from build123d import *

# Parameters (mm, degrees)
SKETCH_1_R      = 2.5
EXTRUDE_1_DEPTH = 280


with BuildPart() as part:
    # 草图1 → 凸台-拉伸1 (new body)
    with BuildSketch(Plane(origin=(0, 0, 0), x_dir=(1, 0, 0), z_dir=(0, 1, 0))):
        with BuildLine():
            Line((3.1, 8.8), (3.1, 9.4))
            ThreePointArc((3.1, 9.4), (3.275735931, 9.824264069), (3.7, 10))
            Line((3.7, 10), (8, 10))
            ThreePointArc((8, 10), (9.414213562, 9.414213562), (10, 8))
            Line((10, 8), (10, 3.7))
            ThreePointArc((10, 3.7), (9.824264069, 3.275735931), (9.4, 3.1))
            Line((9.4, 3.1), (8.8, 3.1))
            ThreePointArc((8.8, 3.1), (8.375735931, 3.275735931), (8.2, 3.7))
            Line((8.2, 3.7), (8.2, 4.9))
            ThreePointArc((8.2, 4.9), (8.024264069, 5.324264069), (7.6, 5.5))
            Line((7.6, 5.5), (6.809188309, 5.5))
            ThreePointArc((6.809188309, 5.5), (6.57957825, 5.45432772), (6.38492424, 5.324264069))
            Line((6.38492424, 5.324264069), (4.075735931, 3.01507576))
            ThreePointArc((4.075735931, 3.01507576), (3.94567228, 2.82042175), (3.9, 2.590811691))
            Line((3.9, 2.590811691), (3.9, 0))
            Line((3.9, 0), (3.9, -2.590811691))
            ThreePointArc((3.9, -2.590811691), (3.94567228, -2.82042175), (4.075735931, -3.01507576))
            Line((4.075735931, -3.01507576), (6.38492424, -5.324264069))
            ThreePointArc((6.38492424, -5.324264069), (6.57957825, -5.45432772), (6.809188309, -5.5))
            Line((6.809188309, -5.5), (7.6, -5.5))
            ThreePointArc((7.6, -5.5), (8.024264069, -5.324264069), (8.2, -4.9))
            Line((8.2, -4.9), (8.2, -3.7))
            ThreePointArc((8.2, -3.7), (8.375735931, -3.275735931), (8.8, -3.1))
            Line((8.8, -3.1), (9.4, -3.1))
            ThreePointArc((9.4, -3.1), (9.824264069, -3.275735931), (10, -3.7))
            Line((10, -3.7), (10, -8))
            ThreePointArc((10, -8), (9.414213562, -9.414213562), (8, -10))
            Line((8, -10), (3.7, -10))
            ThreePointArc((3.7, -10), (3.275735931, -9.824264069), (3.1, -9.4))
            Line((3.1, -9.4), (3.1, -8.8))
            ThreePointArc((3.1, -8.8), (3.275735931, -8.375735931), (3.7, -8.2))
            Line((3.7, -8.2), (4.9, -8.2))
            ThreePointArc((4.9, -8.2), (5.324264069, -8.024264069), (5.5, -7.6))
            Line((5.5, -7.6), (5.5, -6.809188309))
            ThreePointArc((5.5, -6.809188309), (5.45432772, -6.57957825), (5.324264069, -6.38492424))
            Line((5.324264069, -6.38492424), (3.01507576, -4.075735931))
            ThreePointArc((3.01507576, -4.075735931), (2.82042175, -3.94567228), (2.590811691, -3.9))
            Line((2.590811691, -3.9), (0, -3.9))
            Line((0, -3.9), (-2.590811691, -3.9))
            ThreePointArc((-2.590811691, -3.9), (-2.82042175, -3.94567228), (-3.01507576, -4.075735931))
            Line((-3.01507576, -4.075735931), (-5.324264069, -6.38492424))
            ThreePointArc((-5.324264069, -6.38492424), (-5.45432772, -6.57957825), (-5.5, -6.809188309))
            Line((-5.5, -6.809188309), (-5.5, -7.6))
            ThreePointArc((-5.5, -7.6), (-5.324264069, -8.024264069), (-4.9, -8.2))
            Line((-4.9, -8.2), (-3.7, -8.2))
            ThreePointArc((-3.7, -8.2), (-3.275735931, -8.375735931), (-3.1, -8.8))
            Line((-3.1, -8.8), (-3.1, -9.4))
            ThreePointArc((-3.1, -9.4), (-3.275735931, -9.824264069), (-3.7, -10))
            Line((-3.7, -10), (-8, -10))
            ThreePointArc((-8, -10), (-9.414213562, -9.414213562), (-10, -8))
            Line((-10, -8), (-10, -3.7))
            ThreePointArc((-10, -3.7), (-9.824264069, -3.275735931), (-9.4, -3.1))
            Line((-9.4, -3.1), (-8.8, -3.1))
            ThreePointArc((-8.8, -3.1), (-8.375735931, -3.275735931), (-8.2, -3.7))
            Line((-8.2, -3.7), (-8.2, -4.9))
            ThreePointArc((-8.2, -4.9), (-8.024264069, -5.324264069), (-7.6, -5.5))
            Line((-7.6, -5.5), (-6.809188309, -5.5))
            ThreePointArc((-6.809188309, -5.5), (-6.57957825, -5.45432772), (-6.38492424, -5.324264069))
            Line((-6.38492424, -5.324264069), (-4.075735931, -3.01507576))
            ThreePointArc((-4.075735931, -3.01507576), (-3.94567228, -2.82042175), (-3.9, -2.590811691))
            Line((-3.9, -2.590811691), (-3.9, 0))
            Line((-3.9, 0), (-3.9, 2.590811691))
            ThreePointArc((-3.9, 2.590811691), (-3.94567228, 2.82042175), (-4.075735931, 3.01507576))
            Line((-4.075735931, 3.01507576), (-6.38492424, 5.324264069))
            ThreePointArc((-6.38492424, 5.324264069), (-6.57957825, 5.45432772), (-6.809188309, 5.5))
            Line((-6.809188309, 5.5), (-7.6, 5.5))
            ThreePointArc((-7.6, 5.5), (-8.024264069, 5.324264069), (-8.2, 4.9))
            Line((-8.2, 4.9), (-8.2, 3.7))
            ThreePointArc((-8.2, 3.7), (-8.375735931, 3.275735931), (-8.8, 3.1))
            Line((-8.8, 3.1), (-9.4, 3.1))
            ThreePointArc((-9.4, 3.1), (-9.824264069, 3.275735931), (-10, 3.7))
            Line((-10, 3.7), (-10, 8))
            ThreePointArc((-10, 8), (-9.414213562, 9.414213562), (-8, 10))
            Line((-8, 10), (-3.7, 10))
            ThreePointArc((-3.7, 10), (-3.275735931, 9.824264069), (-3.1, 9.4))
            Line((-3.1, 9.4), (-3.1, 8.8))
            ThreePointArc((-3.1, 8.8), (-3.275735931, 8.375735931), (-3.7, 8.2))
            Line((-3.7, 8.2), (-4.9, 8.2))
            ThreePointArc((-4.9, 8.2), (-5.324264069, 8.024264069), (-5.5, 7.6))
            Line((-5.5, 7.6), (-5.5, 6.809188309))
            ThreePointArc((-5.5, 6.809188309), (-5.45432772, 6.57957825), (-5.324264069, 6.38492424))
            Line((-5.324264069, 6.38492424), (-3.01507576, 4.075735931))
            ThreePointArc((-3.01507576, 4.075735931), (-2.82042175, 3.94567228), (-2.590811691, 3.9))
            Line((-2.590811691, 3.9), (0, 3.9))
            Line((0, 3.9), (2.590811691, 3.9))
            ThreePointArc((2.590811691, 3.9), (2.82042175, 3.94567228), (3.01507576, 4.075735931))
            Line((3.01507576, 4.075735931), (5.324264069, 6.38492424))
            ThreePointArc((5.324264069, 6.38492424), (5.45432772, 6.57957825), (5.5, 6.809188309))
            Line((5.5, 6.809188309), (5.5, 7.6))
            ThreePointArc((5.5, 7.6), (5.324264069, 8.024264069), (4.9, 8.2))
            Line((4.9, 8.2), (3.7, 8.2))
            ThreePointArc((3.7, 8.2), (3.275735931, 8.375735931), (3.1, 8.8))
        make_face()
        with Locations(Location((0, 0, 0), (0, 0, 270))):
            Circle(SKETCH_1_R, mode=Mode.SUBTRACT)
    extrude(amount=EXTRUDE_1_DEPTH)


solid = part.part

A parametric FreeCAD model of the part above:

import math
import FreeCAD as App
import Part
import Sketcher

V = App.Vector

doc = App.newDocument("Part")
body = doc.addObject("PartDesign::Body", "Body")

# Sketch on XZ plane
sketch1 = doc.addObject("Sketcher::SketchObject", "Sketch")
body.addObject(sketch1)
sketch1.AttachmentSupport = (doc.XZ_Plane, [""])
sketch1.MapMode = "FlatFace"
sketch1.addGeometry([
    Part.LineSegment(V(3.1, -9.4, 0), V(3.1, -8.8, 0)),  # 0
    Part.ArcOfCircle(Part.Circle(V(3.7, -8.8, 0), V(0, 0, 1), 0.6), math.radians(90), math.radians(180)),  # 1
    Part.LineSegment(V(3.7, -8.2, 0), V(4.9, -8.2, 0)),  # 2
    Part.ArcOfCircle(Part.Circle(V(4.9, -7.6, 0), V(0, 0, 1), 0.6), math.radians(-90), math.radians(0)),  # 3
    Part.LineSegment(V(5.5, -7.6, 0), V(5.5, -6.809188, 0)),  # 4
    Part.ArcOfCircle(Part.Circle(V(4.9, -6.809188, 0), V(0, 0, 1), 0.6), math.radians(0), math.radians(45)),  # 5
    Part.LineSegment(V(5.324264, -6.384924, 0), V(3.015076, -4.075736, 0)),  # 6
    Part.ArcOfCircle(Part.Circle(V(2.590812, -4.5, 0), V(0, 0, 1), 0.6), math.radians(45), math.radians(90)),  # 7
    Part.LineSegment(V(2.590812, -3.9, 0), V(-2.590812, -3.9, 0)),  # 8
    Part.ArcOfCircle(Part.Circle(V(-2.590812, -4.5, 0), V(0, 0, 1), 0.6), math.radians(90), math.radians(135)),  # 9
    Part.LineSegment(V(-3.015076, -4.075736, 0), V(-5.324264, -6.384924, 0)),  # 10
    Part.ArcOfCircle(Part.Circle(V(-4.9, -6.809188, 0), V(0, 0, 1), 0.6), math.radians(135), math.radians(180)),  # 11
    Part.LineSegment(V(-5.5, -6.809188, 0), V(-5.5, -7.6, 0)),  # 12
    Part.ArcOfCircle(Part.Circle(V(-4.9, -7.6, 0), V(0, 0, 1), 0.6), math.radians(180), math.radians(270)),  # 13
    Part.LineSegment(V(-4.9, -8.2, 0), V(-3.7, -8.2, 0)),  # 14
    Part.ArcOfCircle(Part.Circle(V(-3.7, -8.8, 0), V(0, 0, 1), 0.6), math.radians(0), math.radians(90)),  # 15
    Part.LineSegment(V(-3.1, -8.8, 0), V(-3.1, -9.4, 0)),  # 16
    Part.ArcOfCircle(Part.Circle(V(-3.7, -9.4, 0), V(0, 0, 1), 0.6), math.radians(-90), math.radians(0)),  # 17
    Part.LineSegment(V(-3.7, -10, 0), V(-8, -10, 0)),  # 18
    Part.ArcOfCircle(Part.Circle(V(-8, -8, 0), V(0, 0, 1), 2), math.radians(-180), math.radians(-90)),  # 19
    Part.LineSegment(V(-10, -8, 0), V(-10, -3.7, 0)),  # 20
    Part.ArcOfCircle(Part.Circle(V(-9.4, -3.7, 0), V(0, 0, 1), 0.6), math.radians(90), math.radians(180)),  # 21
    Part.LineSegment(V(-9.4, -3.1, 0), V(-8.8, -3.1, 0)),  # 22
    Part.ArcOfCircle(Part.Circle(V(-8.8, -3.7, 0), V(0, 0, 1), 0.6), math.radians(0), math.radians(90)),  # 23
    Part.LineSegment(V(-8.2, -3.7, 0), V(-8.2, -4.9, 0)),  # 24
    Part.ArcOfCircle(Part.Circle(V(-7.6, -4.9, 0), V(0, 0, 1), 0.6), math.radians(180), math.radians(270)),  # 25
    Part.LineSegment(V(-7.6, -5.5, 0), V(-6.809188, -5.5, 0)),  # 26
    Part.ArcOfCircle(Part.Circle(V(-6.809188, -4.9, 0), V(0, 0, 1), 0.6), math.radians(-90), math.radians(-45)),  # 27
    Part.LineSegment(V(-6.384924, -5.324264, 0), V(-4.075736, -3.015076, 0)),  # 28
    Part.ArcOfCircle(Part.Circle(V(-4.5, -2.590812, 0), V(0, 0, 1), 0.6), math.radians(-45), math.radians(0)),  # 29
    Part.LineSegment(V(-3.9, -2.590812, 0), V(-3.9, 2.590812, 0)),  # 30
    Part.ArcOfCircle(Part.Circle(V(-4.5, 2.590812, 0), V(0, 0, 1), 0.6), math.radians(0), math.radians(45)),  # 31
    Part.LineSegment(V(-4.075736, 3.015076, 0), V(-6.384924, 5.324264, 0)),  # 32
    Part.ArcOfCircle(Part.Circle(V(-6.809188, 4.9, 0), V(0, 0, 1), 0.6), math.radians(45), math.radians(90)),  # 33
    Part.LineSegment(V(-6.809188, 5.5, 0), V(-7.6, 5.5, 0)),  # 34
    Part.ArcOfCircle(Part.Circle(V(-7.6, 4.9, 0), V(0, 0, 1), 0.6), math.radians(90), math.radians(180)),  # 35
    Part.LineSegment(V(-8.2, 4.9, 0), V(-8.2, 3.7, 0)),  # 36
    Part.ArcOfCircle(Part.Circle(V(-8.8, 3.7, 0), V(0, 0, 1), 0.6), math.radians(-90), math.radians(0)),  # 37
    Part.LineSegment(V(-8.8, 3.1, 0), V(-9.4, 3.1, 0)),  # 38
    Part.ArcOfCircle(Part.Circle(V(-9.4, 3.7, 0), V(0, 0, 1), 0.6), math.radians(180), math.radians(270)),  # 39
    Part.LineSegment(V(-10, 3.7, 0), V(-10, 8, 0)),  # 40
    Part.ArcOfCircle(Part.Circle(V(-8, 8, 0), V(0, 0, 1), 2), math.radians(90), math.radians(180)),  # 41
    Part.LineSegment(V(-8, 10, 0), V(-3.7, 10, 0)),  # 42
    Part.ArcOfCircle(Part.Circle(V(-3.7, 9.4, 0), V(0, 0, 1), 0.6), math.radians(0), math.radians(90)),  # 43
    Part.LineSegment(V(-3.1, 9.4, 0), V(-3.1, 8.8, 0)),  # 44
    Part.ArcOfCircle(Part.Circle(V(-3.7, 8.8, 0), V(0, 0, 1), 0.6), math.radians(-90), math.radians(0)),  # 45
    Part.LineSegment(V(-3.7, 8.2, 0), V(-4.9, 8.2, 0)),  # 46
    Part.ArcOfCircle(Part.Circle(V(-4.9, 7.6, 0), V(0, 0, 1), 0.6), math.radians(90), math.radians(180)),  # 47
    Part.LineSegment(V(-5.5, 7.6, 0), V(-5.5, 6.809188, 0)),  # 48
    Part.ArcOfCircle(Part.Circle(V(-4.9, 6.809188, 0), V(0, 0, 1), 0.6), math.radians(180), math.radians(225)),  # 49
    Part.LineSegment(V(-5.324264, 6.384924, 0), V(-3.015076, 4.075736, 0)),  # 50
    Part.ArcOfCircle(Part.Circle(V(-2.590812, 4.5, 0), V(0, 0, 1), 0.6), math.radians(-135), math.radians(-90)),  # 51
    Part.LineSegment(V(-2.590812, 3.9, 0), V(2.590812, 3.9, 0)),  # 52
    Part.ArcOfCircle(Part.Circle(V(2.590812, 4.5, 0), V(0, 0, 1), 0.6), math.radians(-90), math.radians(-45)),  # 53
    Part.LineSegment(V(3.015076, 4.075736, 0), V(5.324264, 6.384924, 0)),  # 54
    Part.ArcOfCircle(Part.Circle(V(4.9, 6.809188, 0), V(0, 0, 1), 0.6), math.radians(-45), math.radians(0)),  # 55
    Part.LineSegment(V(5.5, 6.809188, 0), V(5.5, 7.6, 0)),  # 56
    Part.ArcOfCircle(Part.Circle(V(4.9, 7.6, 0), V(0, 0, 1), 0.6), math.radians(0), math.radians(90)),  # 57
    Part.LineSegment(V(4.9, 8.2, 0), V(3.7, 8.2, 0)),  # 58
    Part.ArcOfCircle(Part.Circle(V(3.7, 8.8, 0), V(0, 0, 1), 0.6), math.radians(180), math.radians(270)),  # 59
    Part.LineSegment(V(3.1, 8.8, 0), V(3.1, 9.4, 0)),  # 60
    Part.ArcOfCircle(Part.Circle(V(3.7, 9.4, 0), V(0, 0, 1), 0.6), math.radians(90), math.radians(180)),  # 61
    Part.LineSegment(V(3.7, 10, 0), V(8, 10, 0)),  # 62
    Part.ArcOfCircle(Part.Circle(V(8, 8, 0), V(0, 0, 1), 2), math.radians(0), math.radians(90)),  # 63
    Part.LineSegment(V(10, 8, 0), V(10, 3.7, 0)),  # 64
    Part.ArcOfCircle(Part.Circle(V(9.4, 3.7, 0), V(0, 0, 1), 0.6), math.radians(-90), math.radians(0)),  # 65
    Part.LineSegment(V(9.4, 3.1, 0), V(8.8, 3.1, 0)),  # 66
    Part.ArcOfCircle(Part.Circle(V(8.8, 3.7, 0), V(0, 0, 1), 0.6), math.radians(180), math.radians(270)),  # 67
    Part.LineSegment(V(8.2, 3.7, 0), V(8.2, 4.9, 0)),  # 68
    Part.ArcOfCircle(Part.Circle(V(7.6, 4.9, 0), V(0, 0, 1), 0.6), math.radians(0), math.radians(90)),  # 69
    Part.LineSegment(V(7.6, 5.5, 0), V(6.809188, 5.5, 0)),  # 70
    Part.ArcOfCircle(Part.Circle(V(6.809188, 4.9, 0), V(0, 0, 1), 0.6), math.radians(90), math.radians(135)),  # 71
    Part.LineSegment(V(6.384924, 5.324264, 0), V(4.075736, 3.015076, 0)),  # 72
    Part.ArcOfCircle(Part.Circle(V(4.5, 2.590812, 0), V(0, 0, 1), 0.6), math.radians(135), math.radians(180)),  # 73
    Part.LineSegment(V(3.9, 2.590812, 0), V(3.9, -2.590812, 0)),  # 74
    Part.ArcOfCircle(Part.Circle(V(4.5, -2.590812, 0), V(0, 0, 1), 0.6), math.radians(180), math.radians(225)),  # 75
    Part.LineSegment(V(4.075736, -3.015076, 0), V(6.384924, -5.324264, 0)),  # 76
    Part.ArcOfCircle(Part.Circle(V(6.809188, -4.9, 0), V(0, 0, 1), 0.6), math.radians(-135), math.radians(-90)),  # 77
    Part.LineSegment(V(6.809188, -5.5, 0), V(7.6, -5.5, 0)),  # 78
    Part.ArcOfCircle(Part.Circle(V(7.6, -4.9, 0), V(0, 0, 1), 0.6), math.radians(-90), math.radians(0)),  # 79
    Part.LineSegment(V(8.2, -4.9, 0), V(8.2, -3.7, 0)),  # 80
    Part.ArcOfCircle(Part.Circle(V(8.8, -3.7, 0), V(0, 0, 1), 0.6), math.radians(90), math.radians(180)),  # 81
    Part.LineSegment(V(8.8, -3.1, 0), V(9.4, -3.1, 0)),  # 82
    Part.ArcOfCircle(Part.Circle(V(9.4, -3.7, 0), V(0, 0, 1), 0.6), math.radians(0), math.radians(90)),  # 83
    Part.LineSegment(V(10, -3.7, 0), V(10, -8, 0)),  # 84
    Part.ArcOfCircle(Part.Circle(V(8, -8, 0), V(0, 0, 1), 2), math.radians(-90), math.radians(0)),  # 85
    Part.LineSegment(V(8, -10, 0), V(3.7, -10, 0)),  # 86
    Part.ArcOfCircle(Part.Circle(V(3.7, -9.4, 0), V(0, 0, 1), 0.6), math.radians(180), math.radians(270)),  # 87
    Part.Circle(V(0, 0, 0), V(0, 0, 1), 2.5),  # 88
], False)
sketch1.addConstraint([
    Sketcher.Constraint("Tangent", 0, 2, 1, 2),
    Sketcher.Constraint("Tangent", 1, 1, 2, 1),
    Sketcher.Constraint("Tangent", 2, 2, 3, 1),
    Sketcher.Constraint("Tangent", 3, 2, 4, 1),
    Sketcher.Constraint("Tangent", 4, 2, 5, 1),
    Sketcher.Constraint("Tangent", 5, 2, 6, 1),
    Sketcher.Constraint("Tangent", 6, 2, 7, 1),
    Sketcher.Constraint("Tangent", 7, 2, 8, 1),
    Sketcher.Constraint("Tangent", 8, 2, 9, 1),
    Sketcher.Constraint("Tangent", 9, 2, 10, 1),
    Sketcher.Constraint("Tangent", 10, 2, 11, 1),
    Sketcher.Constraint("Tangent", 11, 2, 12, 1),
    Sketcher.Constraint("Tangent", 12, 2, 13, 1),
    Sketcher.Constraint("Tangent", 13, 2, 14, 1),
    Sketcher.Constraint("Tangent", 14, 2, 15, 2),
    Sketcher.Constraint("Tangent", 15, 1, 16, 1),
    Sketcher.Constraint("Tangent", 16, 2, 17, 2),
    Sketcher.Constraint("Tangent", 17, 1, 18, 1),
    Sketcher.Constraint("Tangent", 18, 2, 19, 2),
    Sketcher.Constraint("Tangent", 19, 1, 20, 1),
    Sketcher.Constraint("Tangent", 20, 2, 21, 2),
    Sketcher.Constraint("Tangent", 21, 1, 22, 1),
    Sketcher.Constraint("Tangent", 22, 2, 23, 2),
    Sketcher.Constraint("Tangent", 23, 1, 24, 1),
    Sketcher.Constraint("Tangent", 24, 2, 25, 1),
    Sketcher.Constraint("Tangent", 25, 2, 26, 1),
    Sketcher.Constraint("Tangent", 26, 2, 27, 1),
    Sketcher.Constraint("Tangent", 27, 2, 28, 1),
    Sketcher.Constraint("Tangent", 28, 2, 29, 1),
    Sketcher.Constraint("Tangent", 29, 2, 30, 1),
    Sketcher.Constraint("Tangent", 30, 2, 31, 1),
    Sketcher.Constraint("Tangent", 31, 2, 32, 1),
    Sketcher.Constraint("Tangent", 32, 2, 33, 1),
    Sketcher.Constraint("Tangent", 33, 2, 34, 1),
    Sketcher.Constraint("Tangent", 34, 2, 35, 1),
    Sketcher.Constraint("Tangent", 35, 2, 36, 1),
    Sketcher.Constraint("Tangent", 36, 2, 37, 2),
    Sketcher.Constraint("Tangent", 37, 1, 38, 1),
    Sketcher.Constraint("Tangent", 38, 2, 39, 2),
    Sketcher.Constraint("Tangent", 39, 1, 40, 1),
    Sketcher.Constraint("Tangent", 40, 2, 41, 2),
    Sketcher.Constraint("Tangent", 41, 1, 42, 1),
    Sketcher.Constraint("Tangent", 42, 2, 43, 2),
    Sketcher.Constraint("Tangent", 43, 1, 44, 1),
    Sketcher.Constraint("Tangent", 44, 2, 45, 2),
    Sketcher.Constraint("Tangent", 45, 1, 46, 1),
    Sketcher.Constraint("Tangent", 46, 2, 47, 1),
    Sketcher.Constraint("Tangent", 47, 2, 48, 1),
    Sketcher.Constraint("Tangent", 48, 2, 49, 1),
    Sketcher.Constraint("Tangent", 49, 2, 50, 1),
    Sketcher.Constraint("Tangent", 50, 2, 51, 1),
    Sketcher.Constraint("Tangent", 51, 2, 52, 1),
    Sketcher.Constraint("Tangent", 52, 2, 53, 1),
    Sketcher.Constraint("Tangent", 53, 2, 54, 1),
    Sketcher.Constraint("Tangent", 54, 2, 55, 1),
    Sketcher.Constraint("Tangent", 55, 2, 56, 1),
    Sketcher.Constraint("Tangent", 56, 2, 57, 1),
    Sketcher.Constraint("Tangent", 57, 2, 58, 1),
    Sketcher.Constraint("Tangent", 58, 2, 59, 2),
    Sketcher.Constraint("Tangent", 59, 1, 60, 1),
    Sketcher.Constraint("Tangent", 60, 2, 61, 2),
    Sketcher.Constraint("Tangent", 61, 1, 62, 1),
    Sketcher.Constraint("Tangent", 62, 2, 63, 2),
    Sketcher.Constraint("Tangent", 63, 1, 64, 1),
    Sketcher.Constraint("Tangent", 64, 2, 65, 2),
    Sketcher.Constraint("Tangent", 65, 1, 66, 1),
    Sketcher.Constraint("Tangent", 66, 2, 67, 2),
    Sketcher.Constraint("Tangent", 67, 1, 68, 1),
    Sketcher.Constraint("Tangent", 68, 2, 69, 1),
    Sketcher.Constraint("Tangent", 69, 2, 70, 1),
    Sketcher.Constraint("Tangent", 70, 2, 71, 1),
    Sketcher.Constraint("Tangent", 71, 2, 72, 1),
    Sketcher.Constraint("Tangent", 72, 2, 73, 1),
    Sketcher.Constraint("Tangent", 73, 2, 74, 1),
    Sketcher.Constraint("Tangent", 74, 2, 75, 1),
    Sketcher.Constraint("Tangent", 75, 2, 76, 1),
    Sketcher.Constraint("Tangent", 76, 2, 77, 1),
    Sketcher.Constraint("Tangent", 77, 2, 78, 1),
    Sketcher.Constraint("Tangent", 78, 2, 79, 1),
    Sketcher.Constraint("Tangent", 79, 2, 80, 1),
    Sketcher.Constraint("Tangent", 80, 2, 81, 2),
    Sketcher.Constraint("Tangent", 81, 1, 82, 1),
    Sketcher.Constraint("Tangent", 82, 2, 83, 2),
    Sketcher.Constraint("Tangent", 83, 1, 84, 1),
    Sketcher.Constraint("Tangent", 84, 2, 85, 2),
    Sketcher.Constraint("Tangent", 85, 1, 86, 1),
    Sketcher.Constraint("Tangent", 86, 2, 87, 2),
    Sketcher.Constraint("Tangent", 87, 1, 0, 1),
    Sketcher.Constraint("Vertical", 0),
    Sketcher.Constraint("Horizontal", 2),
    Sketcher.Constraint("Vertical", 4),
    Sketcher.Constraint("Horizontal", 8),
    Sketcher.Constraint("Vertical", 12),
    Sketcher.Constraint("Horizontal", 14),
    Sketcher.Constraint("Vertical", 16),
    Sketcher.Constraint("Horizontal", 18),
    Sketcher.Constraint("Vertical", 20),
    Sketcher.Constraint("Horizontal", 22),
    Sketcher.Constraint("Vertical", 24),
    Sketcher.Constraint("Horizontal", 26),
    Sketcher.Constraint("Vertical", 30),
    Sketcher.Constraint("Horizontal", 34),
    Sketcher.Constraint("Vertical", 36),
    Sketcher.Constraint("Horizontal", 38),
    Sketcher.Constraint("Vertical", 40),
    Sketcher.Constraint("Horizontal", 42),
    Sketcher.Constraint("Vertical", 44),
    Sketcher.Constraint("Horizontal", 46),
    Sketcher.Constraint("Vertical", 48),
    Sketcher.Constraint("Horizontal", 52),
    Sketcher.Constraint("Vertical", 56),
    Sketcher.Constraint("Horizontal", 58),
    Sketcher.Constraint("Vertical", 60),
    Sketcher.Constraint("Horizontal", 62),
    Sketcher.Constraint("Vertical", 64),
    Sketcher.Constraint("Horizontal", 66),
    Sketcher.Constraint("Vertical", 68),
    Sketcher.Constraint("Horizontal", 70),
    Sketcher.Constraint("Vertical", 74),
    Sketcher.Constraint("Horizontal", 78),
    Sketcher.Constraint("Vertical", 80),
    Sketcher.Constraint("Horizontal", 82),
    Sketcher.Constraint("Vertical", 84),
    Sketcher.Constraint("Horizontal", 86),
    Sketcher.Constraint("Coincident", 88, 3, -1, 1),
    Sketcher.Constraint("Equal", 1, 3),
    Sketcher.Constraint("Equal", 3, 5),
    Sketcher.Constraint("Equal", 5, 7),
    Sketcher.Constraint("Equal", 7, 9),
    Sketcher.Constraint("Equal", 9, 11),
    Sketcher.Constraint("Equal", 11, 13),
    Sketcher.Constraint("Equal", 13, 15),
    Sketcher.Constraint("Equal", 15, 17),
    Sketcher.Constraint("Equal", 17, 21),
    Sketcher.Constraint("Equal", 21, 23),
    Sketcher.Constraint("Equal", 23, 25),
    Sketcher.Constraint("Equal", 25, 27),
    Sketcher.Constraint("Equal", 27, 29),
    Sketcher.Constraint("Equal", 29, 31),
    Sketcher.Constraint("Equal", 31, 33),
    Sketcher.Constraint("Equal", 33, 35),
    Sketcher.Constraint("Equal", 35, 37),
    Sketcher.Constraint("Equal", 37, 39),
    Sketcher.Constraint("Equal", 19, 41),
    Sketcher.Constraint("Equal", 39, 43),
    Sketcher.Constraint("Equal", 43, 45),
    Sketcher.Constraint("Equal", 45, 47),
    Sketcher.Constraint("Equal", 47, 49),
    Sketcher.Constraint("Equal", 49, 51),
    Sketcher.Constraint("Equal", 51, 53),
    Sketcher.Constraint("Equal", 53, 55),
    Sketcher.Constraint("Equal", 55, 57),
    Sketcher.Constraint("Equal", 57, 59),
    Sketcher.Constraint("Equal", 59, 61),
    Sketcher.Constraint("Equal", 41, 63),
    Sketcher.Constraint("Equal", 61, 65),
    Sketcher.Constraint("Equal", 65, 67),
    Sketcher.Constraint("Equal", 67, 69),
    Sketcher.Constraint("Equal", 69, 71),
    Sketcher.Constraint("Equal", 71, 73),
    Sketcher.Constraint("Equal", 73, 75),
    Sketcher.Constraint("Equal", 75, 77),
    Sketcher.Constraint("Equal", 77, 79),
    Sketcher.Constraint("Equal", 79, 81),
    Sketcher.Constraint("Equal", 81, 83),
    Sketcher.Constraint("Equal", 63, 85),
    Sketcher.Constraint("Equal", 83, 87),
    Sketcher.Constraint("Symmetric", 1, 3, 45, 3, -1, 1),
    Sketcher.Constraint("Symmetric", 5, 3, 49, 3, -1, 1),
    Sketcher.Constraint("Symmetric", 7, 3, 51, 3, -1, 1),
    Sketcher.Constraint("Symmetric", 11, 3, 55, 3, -1, 1),
    Sketcher.Constraint("Symmetric", 15, 3, 59, 3, -1, 1),
    Sketcher.Constraint("Symmetric", 19, 3, 63, 3, -1, 1),
    Sketcher.Constraint("Symmetric", 23, 3, 67, 3, -1, 1),
    Sketcher.Constraint("Symmetric", 27, 3, 71, 3, -1, 1),
    Sketcher.Constraint("Symmetric", 29, 3, 73, 3, -1, 1),
    Sketcher.Constraint("Symmetric", 33, 3, 77, 3, -1, 1),
    Sketcher.Constraint("Symmetric", 37, 3, 81, 3, -1, 1),
    Sketcher.Constraint("Symmetric", 41, 3, 85, 3, -1, 1),
    Sketcher.Constraint("Symmetric", 5, 3, 11, 3, -2),
    Sketcher.Constraint("Symmetric", 1, 3, 15, 3, -2),
    Sketcher.Constraint("Symmetric", 41, 3, 63, 3, -2),
    Sketcher.Constraint("Symmetric", 37, 3, 67, 3, -2),
    Sketcher.Constraint("Symmetric", 33, 3, 71, 3, -2),
    Sketcher.Constraint("Perpendicular", 6, 10),
    Sketcher.Constraint("Parallel", 10, 28),
    Sketcher.Constraint("Perpendicular", 28, 32),
    Sketcher.Constraint("Perpendicular", 50, 54),
    Sketcher.Constraint("Perpendicular", 72, 76),
    Sketcher.Constraint("Horizontal", 31, 3, 73, 3),
    Sketcher.Constraint("Equal", 82, 0),
    Sketcher.Constraint("Equal", 78, 4),
    Sketcher.Constraint("Equal", 86, 20),
    Sketcher.Constraint("Equal", 58, 24),
    Sketcher.Constraint("Equal", 52, 30),
    Sketcher.Constraint("Equal", 10, 28),
    Sketcher.Constraint("Diameter", 88, 5.0),
    Sketcher.Constraint("Radius", 19, 2.0),
    Sketcher.Constraint("Radius", 1, 0.6),
    Sketcher.Constraint("DistanceX", 2, 1, 2, 2, 1.2),
    Sketcher.Constraint("DistanceX", 18, 2, 18, 1, 4.3),
    Sketcher.Constraint("DistanceX", 22, 1, 22, 2, 0.6),
    Sketcher.Constraint("DistanceX", 19, 3, -1, 1, 8.0),
    Sketcher.Constraint("DistanceY", 7, 3, -1, 1, 4.5),
    Sketcher.Constraint("DistanceX", 26, 1, 26, 2, 0.790812),
])
pad1 = doc.addObject("PartDesign::Pad", "Pad")
body.addObject(pad1)
pad1.Profile = sketch1
pad1.Length = 280
pad1.Reversed = True

doc.recompute()
